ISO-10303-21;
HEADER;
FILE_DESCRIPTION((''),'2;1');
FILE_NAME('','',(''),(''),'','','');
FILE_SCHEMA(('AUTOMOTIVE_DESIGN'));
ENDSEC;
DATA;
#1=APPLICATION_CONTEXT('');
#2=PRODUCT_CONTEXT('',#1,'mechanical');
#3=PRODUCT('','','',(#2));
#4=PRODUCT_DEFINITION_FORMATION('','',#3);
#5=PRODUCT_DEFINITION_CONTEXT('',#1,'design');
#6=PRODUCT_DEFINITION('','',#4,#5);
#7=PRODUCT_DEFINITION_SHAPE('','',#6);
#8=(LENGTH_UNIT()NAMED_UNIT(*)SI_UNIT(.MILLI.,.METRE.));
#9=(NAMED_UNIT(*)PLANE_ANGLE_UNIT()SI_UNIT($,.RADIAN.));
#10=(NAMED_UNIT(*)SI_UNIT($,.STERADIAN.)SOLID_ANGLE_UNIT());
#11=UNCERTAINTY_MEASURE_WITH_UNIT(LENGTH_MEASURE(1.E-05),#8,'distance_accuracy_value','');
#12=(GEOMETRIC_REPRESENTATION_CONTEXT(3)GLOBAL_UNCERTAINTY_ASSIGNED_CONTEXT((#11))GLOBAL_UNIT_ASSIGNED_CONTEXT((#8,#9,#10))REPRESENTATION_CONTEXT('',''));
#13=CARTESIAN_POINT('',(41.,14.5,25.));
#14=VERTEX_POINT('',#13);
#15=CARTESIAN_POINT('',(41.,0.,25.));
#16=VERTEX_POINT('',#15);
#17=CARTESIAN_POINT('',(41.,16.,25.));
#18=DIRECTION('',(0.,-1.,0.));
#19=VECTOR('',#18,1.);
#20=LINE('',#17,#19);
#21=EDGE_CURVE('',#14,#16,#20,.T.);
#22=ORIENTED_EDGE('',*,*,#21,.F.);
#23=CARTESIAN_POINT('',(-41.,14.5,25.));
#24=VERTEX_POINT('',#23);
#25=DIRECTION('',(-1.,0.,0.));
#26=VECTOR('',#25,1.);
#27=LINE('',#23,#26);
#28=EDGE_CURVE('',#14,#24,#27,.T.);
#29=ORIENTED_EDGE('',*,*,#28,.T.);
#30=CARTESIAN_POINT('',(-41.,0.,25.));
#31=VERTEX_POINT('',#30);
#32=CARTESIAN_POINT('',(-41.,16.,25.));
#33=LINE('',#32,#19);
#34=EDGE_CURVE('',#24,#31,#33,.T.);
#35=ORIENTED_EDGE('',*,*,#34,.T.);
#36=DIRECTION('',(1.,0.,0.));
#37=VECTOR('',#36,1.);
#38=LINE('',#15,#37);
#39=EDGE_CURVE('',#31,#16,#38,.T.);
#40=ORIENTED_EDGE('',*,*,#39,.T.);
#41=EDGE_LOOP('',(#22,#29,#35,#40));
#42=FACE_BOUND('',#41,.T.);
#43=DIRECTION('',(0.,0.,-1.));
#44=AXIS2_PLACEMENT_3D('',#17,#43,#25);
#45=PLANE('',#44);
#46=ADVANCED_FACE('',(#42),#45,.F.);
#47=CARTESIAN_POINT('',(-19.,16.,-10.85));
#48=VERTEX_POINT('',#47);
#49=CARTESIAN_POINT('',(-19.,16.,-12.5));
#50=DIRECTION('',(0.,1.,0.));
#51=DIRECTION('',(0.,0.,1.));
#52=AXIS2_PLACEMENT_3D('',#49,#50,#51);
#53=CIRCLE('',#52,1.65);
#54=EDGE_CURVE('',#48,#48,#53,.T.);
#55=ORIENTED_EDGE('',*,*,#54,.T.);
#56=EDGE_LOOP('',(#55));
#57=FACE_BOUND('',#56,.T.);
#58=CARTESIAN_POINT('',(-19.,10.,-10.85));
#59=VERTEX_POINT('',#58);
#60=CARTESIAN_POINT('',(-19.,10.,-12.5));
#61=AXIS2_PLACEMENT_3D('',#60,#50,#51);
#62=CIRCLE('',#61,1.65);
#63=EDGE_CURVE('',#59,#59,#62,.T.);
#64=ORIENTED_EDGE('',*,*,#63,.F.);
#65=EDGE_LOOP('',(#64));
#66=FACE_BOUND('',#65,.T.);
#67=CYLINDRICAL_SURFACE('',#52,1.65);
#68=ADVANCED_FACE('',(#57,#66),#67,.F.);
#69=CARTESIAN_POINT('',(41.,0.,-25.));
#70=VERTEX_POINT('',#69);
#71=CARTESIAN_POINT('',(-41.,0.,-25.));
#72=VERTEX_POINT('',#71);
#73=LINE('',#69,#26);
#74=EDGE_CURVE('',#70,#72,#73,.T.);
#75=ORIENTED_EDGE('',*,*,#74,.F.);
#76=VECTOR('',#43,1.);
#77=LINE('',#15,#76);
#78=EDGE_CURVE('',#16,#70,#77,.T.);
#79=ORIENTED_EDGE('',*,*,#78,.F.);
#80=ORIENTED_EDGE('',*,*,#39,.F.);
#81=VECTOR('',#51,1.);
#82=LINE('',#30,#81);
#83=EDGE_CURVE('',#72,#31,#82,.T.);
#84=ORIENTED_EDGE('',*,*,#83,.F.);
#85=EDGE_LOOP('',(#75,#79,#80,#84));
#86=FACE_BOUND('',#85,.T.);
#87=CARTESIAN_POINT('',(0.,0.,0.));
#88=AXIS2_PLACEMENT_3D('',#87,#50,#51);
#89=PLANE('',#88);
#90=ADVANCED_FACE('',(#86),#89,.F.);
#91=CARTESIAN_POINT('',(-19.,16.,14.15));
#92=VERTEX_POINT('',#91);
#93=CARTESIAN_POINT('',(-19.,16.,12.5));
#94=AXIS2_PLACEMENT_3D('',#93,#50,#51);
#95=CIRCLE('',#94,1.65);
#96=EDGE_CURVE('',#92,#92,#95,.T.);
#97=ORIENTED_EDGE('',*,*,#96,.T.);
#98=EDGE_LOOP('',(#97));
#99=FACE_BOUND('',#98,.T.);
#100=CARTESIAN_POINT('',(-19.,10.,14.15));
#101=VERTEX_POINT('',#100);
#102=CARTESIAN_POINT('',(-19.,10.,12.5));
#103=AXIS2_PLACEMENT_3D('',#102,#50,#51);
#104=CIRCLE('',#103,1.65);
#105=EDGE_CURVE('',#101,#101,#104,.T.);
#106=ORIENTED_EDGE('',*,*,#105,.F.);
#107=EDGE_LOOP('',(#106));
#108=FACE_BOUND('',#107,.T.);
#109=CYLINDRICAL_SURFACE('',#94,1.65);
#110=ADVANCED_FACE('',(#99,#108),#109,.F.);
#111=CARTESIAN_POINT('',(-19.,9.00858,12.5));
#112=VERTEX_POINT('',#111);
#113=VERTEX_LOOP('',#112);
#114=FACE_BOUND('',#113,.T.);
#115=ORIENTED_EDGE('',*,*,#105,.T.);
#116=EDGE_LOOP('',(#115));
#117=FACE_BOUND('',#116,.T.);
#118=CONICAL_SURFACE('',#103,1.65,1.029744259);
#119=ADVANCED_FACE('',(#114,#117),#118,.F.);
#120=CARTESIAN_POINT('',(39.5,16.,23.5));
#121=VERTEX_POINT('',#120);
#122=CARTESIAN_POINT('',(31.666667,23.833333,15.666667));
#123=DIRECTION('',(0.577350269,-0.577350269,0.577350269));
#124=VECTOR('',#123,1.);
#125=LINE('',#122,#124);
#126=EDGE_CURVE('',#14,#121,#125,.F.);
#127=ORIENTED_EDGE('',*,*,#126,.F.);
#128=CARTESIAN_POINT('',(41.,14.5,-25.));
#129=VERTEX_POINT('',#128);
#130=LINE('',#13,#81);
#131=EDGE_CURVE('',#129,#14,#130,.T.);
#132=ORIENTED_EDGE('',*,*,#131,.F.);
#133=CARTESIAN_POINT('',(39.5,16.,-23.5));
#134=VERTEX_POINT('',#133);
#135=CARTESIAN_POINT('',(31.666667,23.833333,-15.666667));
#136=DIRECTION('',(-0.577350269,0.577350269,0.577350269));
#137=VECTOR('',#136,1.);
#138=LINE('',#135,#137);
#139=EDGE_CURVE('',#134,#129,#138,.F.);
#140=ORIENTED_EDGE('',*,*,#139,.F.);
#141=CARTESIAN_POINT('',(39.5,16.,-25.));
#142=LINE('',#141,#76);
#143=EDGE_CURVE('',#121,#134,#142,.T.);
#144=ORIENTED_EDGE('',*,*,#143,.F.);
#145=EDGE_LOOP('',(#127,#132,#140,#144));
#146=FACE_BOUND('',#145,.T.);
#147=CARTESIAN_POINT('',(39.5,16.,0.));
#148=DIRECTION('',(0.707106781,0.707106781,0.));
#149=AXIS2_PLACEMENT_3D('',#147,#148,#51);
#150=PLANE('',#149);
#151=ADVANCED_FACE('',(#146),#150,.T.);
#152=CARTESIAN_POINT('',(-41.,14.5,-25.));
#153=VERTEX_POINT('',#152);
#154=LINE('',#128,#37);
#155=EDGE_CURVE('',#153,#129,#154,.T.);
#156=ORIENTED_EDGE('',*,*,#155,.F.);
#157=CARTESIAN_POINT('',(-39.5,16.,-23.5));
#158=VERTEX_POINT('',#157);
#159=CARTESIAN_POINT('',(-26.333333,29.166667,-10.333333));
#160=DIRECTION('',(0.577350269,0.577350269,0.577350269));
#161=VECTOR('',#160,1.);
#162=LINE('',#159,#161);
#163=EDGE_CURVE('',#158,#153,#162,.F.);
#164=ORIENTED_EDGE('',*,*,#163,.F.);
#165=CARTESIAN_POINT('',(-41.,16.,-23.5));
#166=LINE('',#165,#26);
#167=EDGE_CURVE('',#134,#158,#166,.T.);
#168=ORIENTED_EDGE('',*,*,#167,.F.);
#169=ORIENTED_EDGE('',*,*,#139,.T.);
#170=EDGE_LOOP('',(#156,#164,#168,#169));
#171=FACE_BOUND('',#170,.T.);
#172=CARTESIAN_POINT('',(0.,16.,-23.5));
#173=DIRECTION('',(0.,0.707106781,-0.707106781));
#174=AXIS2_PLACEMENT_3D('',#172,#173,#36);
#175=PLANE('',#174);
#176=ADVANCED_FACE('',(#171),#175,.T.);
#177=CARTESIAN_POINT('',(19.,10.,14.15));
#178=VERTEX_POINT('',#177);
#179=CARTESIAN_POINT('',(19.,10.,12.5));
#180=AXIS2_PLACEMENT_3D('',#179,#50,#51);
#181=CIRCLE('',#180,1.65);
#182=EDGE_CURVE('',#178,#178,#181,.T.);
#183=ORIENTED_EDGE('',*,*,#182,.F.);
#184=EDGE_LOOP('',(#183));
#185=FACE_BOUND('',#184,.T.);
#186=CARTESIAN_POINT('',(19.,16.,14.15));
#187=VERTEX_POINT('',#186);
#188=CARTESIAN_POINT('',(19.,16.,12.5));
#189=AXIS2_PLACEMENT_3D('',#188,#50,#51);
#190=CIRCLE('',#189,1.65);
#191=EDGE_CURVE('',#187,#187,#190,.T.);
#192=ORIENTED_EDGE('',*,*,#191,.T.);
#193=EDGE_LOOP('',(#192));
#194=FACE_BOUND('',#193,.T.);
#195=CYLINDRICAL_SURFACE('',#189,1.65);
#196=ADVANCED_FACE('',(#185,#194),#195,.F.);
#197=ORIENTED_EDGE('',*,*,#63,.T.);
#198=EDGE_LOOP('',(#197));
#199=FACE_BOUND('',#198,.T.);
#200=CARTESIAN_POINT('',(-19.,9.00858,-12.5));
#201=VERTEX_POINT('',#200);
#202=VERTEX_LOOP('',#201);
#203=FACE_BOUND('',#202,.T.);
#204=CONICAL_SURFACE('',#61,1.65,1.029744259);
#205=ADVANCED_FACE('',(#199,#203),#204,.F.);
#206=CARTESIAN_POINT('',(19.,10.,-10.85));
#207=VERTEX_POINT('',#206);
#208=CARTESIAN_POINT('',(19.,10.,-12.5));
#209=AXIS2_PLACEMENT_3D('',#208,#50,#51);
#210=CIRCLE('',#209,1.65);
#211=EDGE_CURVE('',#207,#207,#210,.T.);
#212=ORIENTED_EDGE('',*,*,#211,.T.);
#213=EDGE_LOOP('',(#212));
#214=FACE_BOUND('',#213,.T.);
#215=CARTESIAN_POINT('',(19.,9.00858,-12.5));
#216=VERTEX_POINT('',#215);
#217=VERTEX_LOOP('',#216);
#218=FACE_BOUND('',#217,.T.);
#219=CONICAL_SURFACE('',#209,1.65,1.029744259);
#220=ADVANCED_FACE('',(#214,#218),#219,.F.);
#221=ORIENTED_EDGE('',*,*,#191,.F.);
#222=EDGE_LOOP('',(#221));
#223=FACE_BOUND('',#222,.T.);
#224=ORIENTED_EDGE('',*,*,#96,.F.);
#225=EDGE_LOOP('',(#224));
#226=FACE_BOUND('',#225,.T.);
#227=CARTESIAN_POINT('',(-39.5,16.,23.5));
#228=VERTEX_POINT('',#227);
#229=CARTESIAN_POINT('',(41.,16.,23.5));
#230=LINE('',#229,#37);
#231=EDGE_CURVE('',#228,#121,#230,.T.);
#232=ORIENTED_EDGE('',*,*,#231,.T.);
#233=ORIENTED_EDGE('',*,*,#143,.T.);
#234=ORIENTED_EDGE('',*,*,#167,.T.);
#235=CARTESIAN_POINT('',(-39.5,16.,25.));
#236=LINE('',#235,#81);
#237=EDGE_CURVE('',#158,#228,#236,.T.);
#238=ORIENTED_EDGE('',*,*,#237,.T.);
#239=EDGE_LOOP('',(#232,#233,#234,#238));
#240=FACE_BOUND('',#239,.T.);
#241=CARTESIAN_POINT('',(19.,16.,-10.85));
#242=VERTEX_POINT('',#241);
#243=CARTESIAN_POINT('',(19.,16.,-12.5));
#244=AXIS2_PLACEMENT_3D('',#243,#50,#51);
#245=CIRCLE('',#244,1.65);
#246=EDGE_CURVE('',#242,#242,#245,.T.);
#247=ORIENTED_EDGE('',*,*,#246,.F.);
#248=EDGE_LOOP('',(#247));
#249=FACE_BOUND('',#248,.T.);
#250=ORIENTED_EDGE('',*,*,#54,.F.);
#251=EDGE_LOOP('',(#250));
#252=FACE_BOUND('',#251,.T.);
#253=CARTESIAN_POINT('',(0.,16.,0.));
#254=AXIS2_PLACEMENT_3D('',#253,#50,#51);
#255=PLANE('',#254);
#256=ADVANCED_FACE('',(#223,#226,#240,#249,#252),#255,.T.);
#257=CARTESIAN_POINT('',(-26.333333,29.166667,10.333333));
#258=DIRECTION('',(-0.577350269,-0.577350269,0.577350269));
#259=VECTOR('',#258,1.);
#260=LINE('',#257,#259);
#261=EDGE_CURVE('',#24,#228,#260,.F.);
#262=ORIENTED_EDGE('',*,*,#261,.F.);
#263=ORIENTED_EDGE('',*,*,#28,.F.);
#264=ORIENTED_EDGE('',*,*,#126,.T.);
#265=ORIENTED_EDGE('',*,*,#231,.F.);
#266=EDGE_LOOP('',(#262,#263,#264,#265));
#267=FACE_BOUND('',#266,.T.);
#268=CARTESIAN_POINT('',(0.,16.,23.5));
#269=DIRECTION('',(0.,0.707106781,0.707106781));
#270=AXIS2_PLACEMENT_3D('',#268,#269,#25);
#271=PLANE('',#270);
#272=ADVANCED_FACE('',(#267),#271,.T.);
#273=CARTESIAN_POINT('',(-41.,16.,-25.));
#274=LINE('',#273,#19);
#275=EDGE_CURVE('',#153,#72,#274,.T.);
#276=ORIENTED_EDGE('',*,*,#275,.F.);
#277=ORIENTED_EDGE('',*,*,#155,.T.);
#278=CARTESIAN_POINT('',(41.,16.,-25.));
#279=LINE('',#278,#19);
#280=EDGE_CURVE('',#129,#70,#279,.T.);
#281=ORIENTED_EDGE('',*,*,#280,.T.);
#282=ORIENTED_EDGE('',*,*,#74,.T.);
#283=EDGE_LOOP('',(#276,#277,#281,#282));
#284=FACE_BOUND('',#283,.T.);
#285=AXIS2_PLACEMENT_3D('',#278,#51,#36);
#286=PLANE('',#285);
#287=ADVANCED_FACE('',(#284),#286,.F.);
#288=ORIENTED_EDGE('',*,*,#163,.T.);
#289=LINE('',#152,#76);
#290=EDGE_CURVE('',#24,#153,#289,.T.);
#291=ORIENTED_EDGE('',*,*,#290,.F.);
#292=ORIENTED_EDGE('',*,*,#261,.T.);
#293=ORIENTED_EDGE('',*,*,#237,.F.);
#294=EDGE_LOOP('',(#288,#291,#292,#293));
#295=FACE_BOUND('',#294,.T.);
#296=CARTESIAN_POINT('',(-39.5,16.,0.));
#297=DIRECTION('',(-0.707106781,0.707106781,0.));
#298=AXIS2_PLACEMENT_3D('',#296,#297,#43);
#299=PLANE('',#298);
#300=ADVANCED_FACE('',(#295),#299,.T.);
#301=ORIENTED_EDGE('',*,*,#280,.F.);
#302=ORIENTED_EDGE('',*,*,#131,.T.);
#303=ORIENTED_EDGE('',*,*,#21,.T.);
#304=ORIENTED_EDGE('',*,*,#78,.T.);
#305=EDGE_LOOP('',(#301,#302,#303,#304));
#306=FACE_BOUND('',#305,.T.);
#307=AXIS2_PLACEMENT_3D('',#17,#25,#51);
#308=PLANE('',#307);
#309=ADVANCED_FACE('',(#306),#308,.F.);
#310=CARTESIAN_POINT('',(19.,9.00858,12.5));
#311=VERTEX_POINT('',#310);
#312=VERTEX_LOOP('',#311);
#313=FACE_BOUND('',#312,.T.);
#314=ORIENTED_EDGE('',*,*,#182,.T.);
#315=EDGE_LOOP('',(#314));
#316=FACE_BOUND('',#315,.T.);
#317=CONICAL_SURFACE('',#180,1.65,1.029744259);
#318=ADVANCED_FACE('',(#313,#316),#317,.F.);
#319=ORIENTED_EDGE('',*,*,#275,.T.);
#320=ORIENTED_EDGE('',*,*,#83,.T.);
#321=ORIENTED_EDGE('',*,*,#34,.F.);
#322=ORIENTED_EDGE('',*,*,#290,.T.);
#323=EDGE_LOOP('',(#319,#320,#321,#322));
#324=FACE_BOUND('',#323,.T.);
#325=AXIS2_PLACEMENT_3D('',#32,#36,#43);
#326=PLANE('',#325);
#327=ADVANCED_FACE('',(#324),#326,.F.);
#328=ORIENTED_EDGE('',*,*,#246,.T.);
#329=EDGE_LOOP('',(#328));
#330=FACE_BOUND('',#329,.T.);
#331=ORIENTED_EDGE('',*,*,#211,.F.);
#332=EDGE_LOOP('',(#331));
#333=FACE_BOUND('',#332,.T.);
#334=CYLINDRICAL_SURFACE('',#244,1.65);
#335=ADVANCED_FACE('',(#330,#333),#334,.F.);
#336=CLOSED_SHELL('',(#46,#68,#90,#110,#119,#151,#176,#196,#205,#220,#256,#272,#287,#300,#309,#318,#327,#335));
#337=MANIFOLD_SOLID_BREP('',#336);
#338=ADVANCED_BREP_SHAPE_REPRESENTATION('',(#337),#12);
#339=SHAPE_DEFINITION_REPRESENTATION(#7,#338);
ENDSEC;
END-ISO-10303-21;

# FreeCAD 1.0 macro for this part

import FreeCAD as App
import Part
import Sketcher
from FreeCAD import Vector


def edges_at(feature, points):
    """Names of the edges that pass closest to the given points."""
    edges = feature.Shape.Edges
    near = lambda p: min(range(len(edges)), key=lambda i: edges[i].distToShape(Part.Vertex(*p))[0])
    return sorted({f"Edge{near(p) + 1}" for p in points})


def add_polygon(sketch, points):
    """Adds a closed chain of lines whose ends are joined by coincident constraints."""
    first, n = sketch.GeometryCount, len(points)
    for a, b in zip(points, points[1:] + points[:1]):
        sketch.addGeometry(Part.LineSegment(App.Vector(*a, 0), App.Vector(*b, 0)), False)
    for i in range(n):
        sketch.addConstraint(Sketcher.Constraint("Coincident", first + i, 2, first + (i + 1) % n, 1))

doc = App.newDocument("Part")
body = doc.addObject("PartDesign::Body", "Body")

# Sketch on XZ plane
sketch1 = body.newObject("Sketcher::SketchObject", "Sketch")
sketch1.AttachmentSupport = (doc.getObject("XZ_Plane"), [""])
sketch1.MapMode = "FlatFace"
add_polygon(sketch1, [(-41, -25), (-41, 25), (41, 25), (41, -25)])  # lines 0-3
sketch1.addConstraint(Sketcher.Constraint("Vertical", 0))
sketch1.addConstraint(Sketcher.Constraint("Horizontal", 1))
sketch1.addConstraint(Sketcher.Constraint("Vertical", 2))
sketch1.addConstraint(Sketcher.Constraint("Horizontal", 3))
sketch1.addConstraint(Sketcher.Constraint("Symmetric", 0, 2, 2, 2, -1, 1))
sketch1.addConstraint(Sketcher.Constraint("DistanceX", 1, 1, 1, 2, 82.0))
sketch1.addConstraint(Sketcher.Constraint("DistanceY", 0, 1, 0, 2, 50.0))
pad1 = body.newObject("PartDesign::Pad", "Pad")
pad1.Profile = sketch1
pad1.Length = 16
pad1.Reversed = True
doc.recompute()

chamfer = body.newObject("PartDesign::Chamfer", "Chamfer")
chamfer.Base = (pad1, edges_at(pad1, [
    (41, 16, 0),
    (0, 16, -25),
    (-41, 16, 0),
    (0, 16, 25),
]))
chamfer.Size = 1.5

# Sketch on XZ plane
sketch2 = body.newObject("Sketcher::SketchObject", "Sketch001")
sketch2.AttachmentSupport = (doc.getObject("XZ_Plane"), [""])
sketch2.MapMode = "FlatFace"
sketch2.AttachmentOffset = App.Placement(Vector(0, 0, -16), App.Rotation())
sketch2.addGeometry(Part.Circle(Vector(-19, -12.5, 0), Vector(0, 0, 1), 1.65), False)
sketch2.addGeometry(Part.Circle(Vector(19, -12.5, 0), Vector(0, 0, 1), 1.65), False)
sketch2.addGeometry(Part.Circle(Vector(19, 12.5, 0), Vector(0, 0, 1), 1.65), False)
sketch2.addGeometry(Part.Circle(Vector(-19, 12.5, 0), Vector(0, 0, 1), 1.65), False)
sketch2.addConstraint(Sketcher.Constraint("Equal", 0, 1))
sketch2.addConstraint(Sketcher.Constraint("Equal", 1, 2))
sketch2.addConstraint(Sketcher.Constraint("Equal", 2, 3))
sketch2.addConstraint(Sketcher.Constraint("Symmetric", 0, 3, 2, 3, -1, 1))
sketch2.addConstraint(Sketcher.Constraint("Symmetric", 1, 3, 3, 3, -1, 1))
sketch2.addConstraint(Sketcher.Constraint("Symmetric", 0, 3, 1, 3, -2))
sketch2.addConstraint(Sketcher.Constraint("Diameter", 0, 3.3))
sketch2.addConstraint(Sketcher.Constraint("DistanceX", 0, 3, -1, 1, 19.0))
sketch2.addConstraint(Sketcher.Constraint("DistanceY", 1, 3, 2, 3, 25.0))
doc.recompute()
hole = body.newObject("PartDesign::Hole", "Hole")
hole.Profile = sketch2
hole.ThreadType = "None"
hole.Diameter = 3.3
hole.DepthType = "Dimension"
hole.Depth = 6
hole.DrillPoint = "Angled"
hole.DrillPointAngle = 118
hole.Reversed = True

doc.recompute()
